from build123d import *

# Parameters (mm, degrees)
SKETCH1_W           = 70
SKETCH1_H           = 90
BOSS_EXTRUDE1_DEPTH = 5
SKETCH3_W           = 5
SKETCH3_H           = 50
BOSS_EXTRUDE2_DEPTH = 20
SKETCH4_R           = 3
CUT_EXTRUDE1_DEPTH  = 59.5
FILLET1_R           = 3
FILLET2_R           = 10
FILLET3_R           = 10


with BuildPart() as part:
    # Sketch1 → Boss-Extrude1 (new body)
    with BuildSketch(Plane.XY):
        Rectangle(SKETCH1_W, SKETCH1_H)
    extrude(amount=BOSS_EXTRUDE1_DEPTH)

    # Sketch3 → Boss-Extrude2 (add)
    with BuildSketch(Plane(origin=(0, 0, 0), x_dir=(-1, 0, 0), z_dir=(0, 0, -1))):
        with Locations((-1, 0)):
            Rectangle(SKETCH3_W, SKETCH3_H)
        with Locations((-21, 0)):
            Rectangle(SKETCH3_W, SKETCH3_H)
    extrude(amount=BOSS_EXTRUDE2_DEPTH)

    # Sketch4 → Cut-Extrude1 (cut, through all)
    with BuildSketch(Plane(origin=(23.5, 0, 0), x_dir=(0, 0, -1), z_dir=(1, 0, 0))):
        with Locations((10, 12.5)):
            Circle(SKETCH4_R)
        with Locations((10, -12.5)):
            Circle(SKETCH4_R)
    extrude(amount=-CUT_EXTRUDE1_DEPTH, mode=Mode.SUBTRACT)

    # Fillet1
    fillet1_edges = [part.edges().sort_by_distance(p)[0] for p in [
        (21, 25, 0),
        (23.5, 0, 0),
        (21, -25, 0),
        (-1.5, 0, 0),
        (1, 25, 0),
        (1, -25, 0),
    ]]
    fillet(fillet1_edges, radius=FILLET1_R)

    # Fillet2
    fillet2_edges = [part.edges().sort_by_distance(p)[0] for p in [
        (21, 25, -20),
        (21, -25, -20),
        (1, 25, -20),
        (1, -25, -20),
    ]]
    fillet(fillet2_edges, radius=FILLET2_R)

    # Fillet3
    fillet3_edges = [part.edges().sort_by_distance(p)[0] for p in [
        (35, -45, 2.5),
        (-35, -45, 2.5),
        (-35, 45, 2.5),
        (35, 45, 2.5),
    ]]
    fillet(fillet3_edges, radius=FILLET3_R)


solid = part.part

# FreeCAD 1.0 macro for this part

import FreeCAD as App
import Part
import Sketcher


def edges_at(feature, points):
    """Names of the edges that pass closest to the given points."""
    edges = feature.Shape.Edges
    near = lambda p: min(range(len(edges)), key=lambda i: edges[i].distToShape(Part.Vertex(*p))[0])
    return sorted({f"Edge{near(p) + 1}" for p in points})

doc = App.newDocument("Part")
body = doc.addObject("PartDesign::Body", "Body")

# Sketch on XY plane
sketch1 = body.newObject("Sketcher::SketchObject", "Sketch")
sketch1.AttachmentSupport = (doc.getObject("XY_Plane"), [""])
sketch1.MapMode = "FlatFace"
sketch1.addGeometry([
    Part.LineSegment(App.Vector(-35, 45, 0), App.Vector(-35, -45, 0)),
    Part.LineSegment(App.Vector(-35, -45, 0), App.Vector(35, -45, 0)),
    Part.LineSegment(App.Vector(35, -45, 0), App.Vector(35, 45, 0)),
    Part.LineSegment(App.Vector(35, 45, 0), App.Vector(-35, 45, 0)),
], False)
sketch1.addConstraint([
    Sketcher.Constraint("Coincident", 0, 2, 1, 1),
    Sketcher.Constraint("Coincident", 1, 2, 2, 1),
    Sketcher.Constraint("Coincident", 2, 2, 3, 1),
    Sketcher.Constraint("Coincident", 3, 2, 0, 1),
    Sketcher.Constraint("Vertical", 0),
    Sketcher.Constraint("Horizontal", 1),
    Sketcher.Constraint("Vertical", 2),
    Sketcher.Constraint("Horizontal", 3),
    Sketcher.Constraint("Symmetric", 0, 2, 2, 2, -1, 1),
    Sketcher.Constraint("DistanceX", 1, 1, 1, 2, 70.0),
    Sketcher.Constraint("DistanceY", 0, 2, 0, 1, 90.0),
])
pad1 = body.newObject("PartDesign::Pad", "Pad")
pad1.Profile = sketch1
pad1.Length = 5

# Sketch on XY plane
sketch2 = body.newObject("Sketcher::SketchObject", "Sketch001")
sketch2.AttachmentSupport = (doc.getObject("XY_Plane"), [""])
sketch2.MapMode = "FlatFace"
sketch2.addGeometry([
    Part.LineSegment(App.Vector(4, 25, 0), App.Vector(4, -25, 0)),  # 0
    Part.LineSegment(App.Vector(4, -25, 0), App.Vector(-2, -25, 0)),  # 1
    Part.LineSegment(App.Vector(-2, -25, 0), App.Vector(-2, 25, 0)),  # 2
    Part.LineSegment(App.Vector(-2, 25, 0), App.Vector(4, 25, 0)),  # 3
    Part.LineSegment(App.Vector(24, 25, 0), App.Vector(24, -25, 0)),  # 4
    Part.LineSegment(App.Vector(24, -25, 0), App.Vector(18, -25, 0)),  # 5
    Part.LineSegment(App.Vector(18, -25, 0), App.Vector(18, 25, 0)),  # 6
    Part.LineSegment(App.Vector(18, 25, 0), App.Vector(24, 25, 0)),  # 7
], False)
sketch2.addConstraint([
    Sketcher.Constraint("Coincident", 0, 2, 1, 1),
    Sketcher.Constraint("Coincident", 1, 2, 2, 1),
    Sketcher.Constraint("Coincident", 2, 2, 3, 1),
    Sketcher.Constraint("Coincident", 3, 2, 0, 1),
    Sketcher.Constraint("Coincident", 4, 2, 5, 1),
    Sketcher.Constraint("Coincident", 5, 2, 6, 1),
    Sketcher.Constraint("Coincident", 6, 2, 7, 1),
    Sketcher.Constraint("Coincident", 7, 2, 4, 1),
    Sketcher.Constraint("Vertical", 0),
    Sketcher.Constraint("Horizontal", 1),
    Sketcher.Constraint("Vertical", 2),
    Sketcher.Constraint("Horizontal", 3),
    Sketcher.Constraint("Vertical", 4),
    Sketcher.Constraint("Horizontal", 5),
    Sketcher.Constraint("Vertical", 6),
    Sketcher.Constraint("Horizontal", 7),
    Sketcher.Constraint("Horizontal", 1, 2, 4, 2),
    Sketcher.Constraint("Horizontal", 3, 2, 6, 2),
    Sketcher.Constraint("Equal", 3, 5),
    Sketcher.Constraint("DistanceX", 1, 2, 1, 1, 5.0),
    Sketcher.Constraint("DistanceY", 0, 2, 0, 1, 50.0),
    Sketcher.Constraint("DistanceY", 0, 2, -1, 1, 25.0),
    Sketcher.Constraint("DistanceX", 0, 2, 4, 2, 20.0),
    Sketcher.Constraint("DistanceX", -1, 1, 0, 2, 3.5),
])
pad2 = body.newObject("PartDesign::Pad", "Pad001")
pad2.Profile = sketch2
pad2.Length = 20
pad2.Reversed = True

# Sketch on YZ plane
sketch3 = body.newObject("Sketcher::SketchObject", "Sketch002")
sketch3.AttachmentSupport = (doc.getObject("YZ_Plane"), [""])
sketch3.MapMode = "FlatFace"
sketch3.AttachmentOffset = App.Placement(App.Vector(0, 0, 23.5), App.Rotation())
sketch3.addGeometry([
    Part.Circle(App.Vector(12.5, -10, 0), App.Vector(0, 0, 1), 3),
    Part.Circle(App.Vector(-12.5, -10, 0), App.Vector(0, 0, 1), 3),
], False)
sketch3.addConstraint([
    Sketcher.Constraint("Equal", 0, 1),
    Sketcher.Constraint("Symmetric", 0, 3, 1, 3, -2),
    Sketcher.Constraint("Diameter", 0, 6.0),
    Sketcher.Constraint("DistanceY", 0, 3, -1, 1, 10.0),
    Sketcher.Constraint("DistanceX", 1, 3, 0, 3, 25.0),
])
pocket1 = body.newObject("PartDesign::Pocket", "Pocket")
pocket1.Profile = sketch3
pocket1.Type = "ThroughAll"
doc.recompute()

fillet = body.newObject("PartDesign::Fillet", "Fillet")
fillet.Base = (pocket1, edges_at(pocket1, [
    (21, 25, 0),
    (23.5, 0, 0),
    (21, -25, 0),
    (-1.5, 0, 0),
    (1, 25, 0),
    (1, -25, 0),
]))
fillet.Radius = 3
doc.recompute()

fillet2 = body.newObject("PartDesign::Fillet", "Fillet001")
fillet2.Base = (fillet, edges_at(fillet, [
    (21, 25, -20),
    (21, -25, -20),
    (1, 25, -20),
    (1, -25, -20),
]))
fillet2.Radius = 10
doc.recompute()

fillet3 = body.newObject("PartDesign::Fillet", "Fillet002")
fillet3.Base = (fillet2, edges_at(fillet2, [
    (35, -45, 2.5),
    (-35, -45, 2.5),
    (-35, 45, 2.5),
    (35, 45, 2.5),
]))
fillet3.Radius = 10

doc.recompute()
